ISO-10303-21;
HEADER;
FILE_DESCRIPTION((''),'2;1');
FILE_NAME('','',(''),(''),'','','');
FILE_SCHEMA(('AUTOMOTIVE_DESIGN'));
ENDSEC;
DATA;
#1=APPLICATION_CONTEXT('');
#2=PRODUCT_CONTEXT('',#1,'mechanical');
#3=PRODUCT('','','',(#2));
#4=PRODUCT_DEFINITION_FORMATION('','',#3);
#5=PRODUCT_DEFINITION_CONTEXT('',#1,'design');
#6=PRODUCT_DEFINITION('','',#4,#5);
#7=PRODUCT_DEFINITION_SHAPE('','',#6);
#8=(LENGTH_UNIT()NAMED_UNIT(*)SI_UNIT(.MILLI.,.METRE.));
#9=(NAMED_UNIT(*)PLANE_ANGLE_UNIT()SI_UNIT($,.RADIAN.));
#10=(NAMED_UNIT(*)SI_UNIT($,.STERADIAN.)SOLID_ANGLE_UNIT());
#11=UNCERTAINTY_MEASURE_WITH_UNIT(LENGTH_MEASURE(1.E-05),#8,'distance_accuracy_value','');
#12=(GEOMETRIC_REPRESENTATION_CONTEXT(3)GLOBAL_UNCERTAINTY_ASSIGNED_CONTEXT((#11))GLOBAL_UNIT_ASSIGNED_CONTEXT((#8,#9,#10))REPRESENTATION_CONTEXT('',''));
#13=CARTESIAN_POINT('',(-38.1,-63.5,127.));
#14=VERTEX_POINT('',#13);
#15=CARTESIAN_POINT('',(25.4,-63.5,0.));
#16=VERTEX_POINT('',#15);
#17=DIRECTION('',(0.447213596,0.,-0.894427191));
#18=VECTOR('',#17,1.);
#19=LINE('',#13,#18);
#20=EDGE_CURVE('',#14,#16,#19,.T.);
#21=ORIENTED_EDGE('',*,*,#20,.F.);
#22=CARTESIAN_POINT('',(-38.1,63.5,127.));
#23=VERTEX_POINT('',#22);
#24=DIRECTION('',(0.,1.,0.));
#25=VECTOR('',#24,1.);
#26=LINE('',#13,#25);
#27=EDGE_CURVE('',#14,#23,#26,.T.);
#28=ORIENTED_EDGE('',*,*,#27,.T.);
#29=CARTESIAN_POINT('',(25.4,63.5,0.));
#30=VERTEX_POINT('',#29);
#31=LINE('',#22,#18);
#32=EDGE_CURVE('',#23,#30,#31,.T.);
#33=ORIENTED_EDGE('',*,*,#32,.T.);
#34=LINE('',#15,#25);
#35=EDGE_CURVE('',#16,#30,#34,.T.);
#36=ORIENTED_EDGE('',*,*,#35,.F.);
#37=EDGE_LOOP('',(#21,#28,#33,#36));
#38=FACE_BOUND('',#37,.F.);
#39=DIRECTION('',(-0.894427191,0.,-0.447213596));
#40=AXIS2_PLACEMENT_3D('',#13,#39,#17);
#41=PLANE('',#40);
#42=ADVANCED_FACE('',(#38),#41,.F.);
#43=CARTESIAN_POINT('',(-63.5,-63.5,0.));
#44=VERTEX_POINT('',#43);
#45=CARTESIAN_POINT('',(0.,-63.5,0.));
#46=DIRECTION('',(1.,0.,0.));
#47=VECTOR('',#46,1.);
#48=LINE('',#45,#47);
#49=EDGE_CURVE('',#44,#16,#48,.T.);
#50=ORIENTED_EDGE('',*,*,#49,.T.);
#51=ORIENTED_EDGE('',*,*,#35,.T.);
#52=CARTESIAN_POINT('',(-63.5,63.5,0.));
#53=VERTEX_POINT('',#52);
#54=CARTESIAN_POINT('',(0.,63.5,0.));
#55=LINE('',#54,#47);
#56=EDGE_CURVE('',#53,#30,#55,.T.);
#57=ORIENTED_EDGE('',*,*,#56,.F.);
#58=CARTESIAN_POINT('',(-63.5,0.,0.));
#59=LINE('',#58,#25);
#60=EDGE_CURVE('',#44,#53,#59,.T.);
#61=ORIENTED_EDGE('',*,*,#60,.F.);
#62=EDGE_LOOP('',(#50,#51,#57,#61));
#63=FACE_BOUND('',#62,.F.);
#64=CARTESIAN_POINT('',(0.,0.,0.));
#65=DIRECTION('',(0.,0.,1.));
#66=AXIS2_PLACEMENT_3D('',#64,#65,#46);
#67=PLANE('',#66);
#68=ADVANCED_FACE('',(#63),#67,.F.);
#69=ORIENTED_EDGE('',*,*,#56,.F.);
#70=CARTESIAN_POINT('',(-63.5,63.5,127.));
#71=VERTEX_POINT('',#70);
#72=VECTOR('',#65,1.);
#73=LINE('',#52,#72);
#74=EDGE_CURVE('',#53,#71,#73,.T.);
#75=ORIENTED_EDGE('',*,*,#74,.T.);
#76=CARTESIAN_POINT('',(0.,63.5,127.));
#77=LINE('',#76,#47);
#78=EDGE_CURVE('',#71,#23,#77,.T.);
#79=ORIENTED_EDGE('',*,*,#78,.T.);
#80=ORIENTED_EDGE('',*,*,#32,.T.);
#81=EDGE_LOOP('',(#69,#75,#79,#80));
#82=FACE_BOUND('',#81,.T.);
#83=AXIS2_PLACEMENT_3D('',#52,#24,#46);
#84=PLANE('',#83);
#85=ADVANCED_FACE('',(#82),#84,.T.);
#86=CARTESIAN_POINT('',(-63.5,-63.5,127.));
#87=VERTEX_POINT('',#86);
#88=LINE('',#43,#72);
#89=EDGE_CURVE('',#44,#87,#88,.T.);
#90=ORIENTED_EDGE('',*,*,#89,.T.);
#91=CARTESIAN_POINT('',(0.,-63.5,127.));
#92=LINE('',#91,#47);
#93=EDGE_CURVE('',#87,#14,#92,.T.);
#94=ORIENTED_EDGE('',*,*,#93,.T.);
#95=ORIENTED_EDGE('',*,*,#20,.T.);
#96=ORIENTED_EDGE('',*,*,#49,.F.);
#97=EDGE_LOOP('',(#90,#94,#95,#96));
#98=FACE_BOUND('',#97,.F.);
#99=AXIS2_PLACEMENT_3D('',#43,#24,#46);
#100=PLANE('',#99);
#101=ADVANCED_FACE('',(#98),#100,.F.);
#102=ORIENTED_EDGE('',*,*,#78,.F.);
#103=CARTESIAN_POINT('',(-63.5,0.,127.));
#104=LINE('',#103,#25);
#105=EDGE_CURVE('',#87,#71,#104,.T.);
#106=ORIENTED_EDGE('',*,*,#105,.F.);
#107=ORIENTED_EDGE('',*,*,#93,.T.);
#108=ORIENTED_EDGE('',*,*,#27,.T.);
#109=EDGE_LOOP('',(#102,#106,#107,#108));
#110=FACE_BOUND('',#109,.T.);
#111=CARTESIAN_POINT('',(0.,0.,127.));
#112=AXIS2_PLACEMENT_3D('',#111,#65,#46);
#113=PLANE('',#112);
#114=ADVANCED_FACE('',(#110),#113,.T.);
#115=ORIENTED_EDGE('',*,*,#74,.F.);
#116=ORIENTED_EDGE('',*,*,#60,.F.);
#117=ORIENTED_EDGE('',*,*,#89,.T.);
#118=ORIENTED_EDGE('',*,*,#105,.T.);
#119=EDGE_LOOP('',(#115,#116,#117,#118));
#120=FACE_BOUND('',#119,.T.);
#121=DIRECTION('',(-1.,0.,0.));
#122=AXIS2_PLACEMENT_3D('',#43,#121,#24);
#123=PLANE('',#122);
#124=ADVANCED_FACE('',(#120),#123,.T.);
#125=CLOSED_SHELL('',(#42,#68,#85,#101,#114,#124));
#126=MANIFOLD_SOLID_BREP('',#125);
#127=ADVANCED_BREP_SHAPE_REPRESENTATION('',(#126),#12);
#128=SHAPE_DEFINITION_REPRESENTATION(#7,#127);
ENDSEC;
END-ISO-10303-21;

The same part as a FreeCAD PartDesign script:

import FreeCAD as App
import Part
import Sketcher
Q = App.Units.Quantity


def add_polygon(sketch, points):
    """Adds a closed chain of lines whose ends are joined by coincident constraints."""
    first, n = sketch.GeometryCount, len(points)
    for a, b in zip(points, points[1:] + points[:1]):
        sketch.addGeometry(Part.LineSegment(App.Vector(*a, 0), App.Vector(*b, 0)), False)
    for i in range(n):
        sketch.addConstraint(Sketcher.Constraint("Coincident", first + i, 2, first + (i + 1) % n, 1))

doc = App.newDocument("Part")
body = doc.addObject("PartDesign::Body", "Body")

sketch1 = body.newObject("Sketcher::SketchObject", "Sketch")
sketch1.AttachmentSupport = (doc.getObject("XY_Plane"), [""])
sketch1.MapMode = "FlatFace"
add_polygon(sketch1, [(-64, 64), (-64, -64), (64, -64), (64, 64)])
sketch1.addConstraint([
    Sketcher.Constraint("Vertical", 0),
    Sketcher.Constraint("Horizontal", 1),
    Sketcher.Constraint("Vertical", 2),
    Sketcher.Constraint("Horizontal", 3),
    Sketcher.Constraint("Symmetric", 0, 2, 2, 2, -1, 1),
    Sketcher.Constraint("Equal", 3, 0),
    Sketcher.Constraint("DistanceX", 1, 1, 1, 2, Q("5 in")),
])
pad1 = body.newObject("PartDesign::Pad", "Pad")
pad1.Profile = sketch1
pad1.Length = Q("5 in")

sketch2 = body.newObject("Sketcher::SketchObject", "Sketch001")
sketch2.AttachmentSupport = (doc.getObject("XZ_Plane"), [""])
sketch2.MapMode = "FlatFace"
sketch2.AttachmentOffset = App.Placement(App.Vector(0, 0, 2.5 * 25.4), App.Rotation())
add_polygon(sketch2, [(64, 127), (-38, 127), (25, 0), (64, 0)])
sketch2.addConstraint([
    Sketcher.Constraint("Horizontal", 0),
    Sketcher.Constraint("Horizontal", 2),
    Sketcher.Constraint("Vertical", 3),
    Sketcher.Constraint("PointOnObject", 1, 2, -1),
    Sketcher.Constraint("DistanceX", 0, 2, 0, 1, Q("4 in")),
    Sketcher.Constraint("DistanceY", 3, 1, 3, 2, Q("5 in")),
    Sketcher.Constraint("DistanceX", 2, 1, 2, 2, Q("1.5 in")),
    Sketcher.Constraint("DistanceX", -1, 1, 1, 2, Q("1 in")),
])
pocket1 = body.newObject("PartDesign::Pocket", "Pocket")
pocket1.Profile = sketch2
pocket1.Length = Q("5 in")

doc.recompute()
